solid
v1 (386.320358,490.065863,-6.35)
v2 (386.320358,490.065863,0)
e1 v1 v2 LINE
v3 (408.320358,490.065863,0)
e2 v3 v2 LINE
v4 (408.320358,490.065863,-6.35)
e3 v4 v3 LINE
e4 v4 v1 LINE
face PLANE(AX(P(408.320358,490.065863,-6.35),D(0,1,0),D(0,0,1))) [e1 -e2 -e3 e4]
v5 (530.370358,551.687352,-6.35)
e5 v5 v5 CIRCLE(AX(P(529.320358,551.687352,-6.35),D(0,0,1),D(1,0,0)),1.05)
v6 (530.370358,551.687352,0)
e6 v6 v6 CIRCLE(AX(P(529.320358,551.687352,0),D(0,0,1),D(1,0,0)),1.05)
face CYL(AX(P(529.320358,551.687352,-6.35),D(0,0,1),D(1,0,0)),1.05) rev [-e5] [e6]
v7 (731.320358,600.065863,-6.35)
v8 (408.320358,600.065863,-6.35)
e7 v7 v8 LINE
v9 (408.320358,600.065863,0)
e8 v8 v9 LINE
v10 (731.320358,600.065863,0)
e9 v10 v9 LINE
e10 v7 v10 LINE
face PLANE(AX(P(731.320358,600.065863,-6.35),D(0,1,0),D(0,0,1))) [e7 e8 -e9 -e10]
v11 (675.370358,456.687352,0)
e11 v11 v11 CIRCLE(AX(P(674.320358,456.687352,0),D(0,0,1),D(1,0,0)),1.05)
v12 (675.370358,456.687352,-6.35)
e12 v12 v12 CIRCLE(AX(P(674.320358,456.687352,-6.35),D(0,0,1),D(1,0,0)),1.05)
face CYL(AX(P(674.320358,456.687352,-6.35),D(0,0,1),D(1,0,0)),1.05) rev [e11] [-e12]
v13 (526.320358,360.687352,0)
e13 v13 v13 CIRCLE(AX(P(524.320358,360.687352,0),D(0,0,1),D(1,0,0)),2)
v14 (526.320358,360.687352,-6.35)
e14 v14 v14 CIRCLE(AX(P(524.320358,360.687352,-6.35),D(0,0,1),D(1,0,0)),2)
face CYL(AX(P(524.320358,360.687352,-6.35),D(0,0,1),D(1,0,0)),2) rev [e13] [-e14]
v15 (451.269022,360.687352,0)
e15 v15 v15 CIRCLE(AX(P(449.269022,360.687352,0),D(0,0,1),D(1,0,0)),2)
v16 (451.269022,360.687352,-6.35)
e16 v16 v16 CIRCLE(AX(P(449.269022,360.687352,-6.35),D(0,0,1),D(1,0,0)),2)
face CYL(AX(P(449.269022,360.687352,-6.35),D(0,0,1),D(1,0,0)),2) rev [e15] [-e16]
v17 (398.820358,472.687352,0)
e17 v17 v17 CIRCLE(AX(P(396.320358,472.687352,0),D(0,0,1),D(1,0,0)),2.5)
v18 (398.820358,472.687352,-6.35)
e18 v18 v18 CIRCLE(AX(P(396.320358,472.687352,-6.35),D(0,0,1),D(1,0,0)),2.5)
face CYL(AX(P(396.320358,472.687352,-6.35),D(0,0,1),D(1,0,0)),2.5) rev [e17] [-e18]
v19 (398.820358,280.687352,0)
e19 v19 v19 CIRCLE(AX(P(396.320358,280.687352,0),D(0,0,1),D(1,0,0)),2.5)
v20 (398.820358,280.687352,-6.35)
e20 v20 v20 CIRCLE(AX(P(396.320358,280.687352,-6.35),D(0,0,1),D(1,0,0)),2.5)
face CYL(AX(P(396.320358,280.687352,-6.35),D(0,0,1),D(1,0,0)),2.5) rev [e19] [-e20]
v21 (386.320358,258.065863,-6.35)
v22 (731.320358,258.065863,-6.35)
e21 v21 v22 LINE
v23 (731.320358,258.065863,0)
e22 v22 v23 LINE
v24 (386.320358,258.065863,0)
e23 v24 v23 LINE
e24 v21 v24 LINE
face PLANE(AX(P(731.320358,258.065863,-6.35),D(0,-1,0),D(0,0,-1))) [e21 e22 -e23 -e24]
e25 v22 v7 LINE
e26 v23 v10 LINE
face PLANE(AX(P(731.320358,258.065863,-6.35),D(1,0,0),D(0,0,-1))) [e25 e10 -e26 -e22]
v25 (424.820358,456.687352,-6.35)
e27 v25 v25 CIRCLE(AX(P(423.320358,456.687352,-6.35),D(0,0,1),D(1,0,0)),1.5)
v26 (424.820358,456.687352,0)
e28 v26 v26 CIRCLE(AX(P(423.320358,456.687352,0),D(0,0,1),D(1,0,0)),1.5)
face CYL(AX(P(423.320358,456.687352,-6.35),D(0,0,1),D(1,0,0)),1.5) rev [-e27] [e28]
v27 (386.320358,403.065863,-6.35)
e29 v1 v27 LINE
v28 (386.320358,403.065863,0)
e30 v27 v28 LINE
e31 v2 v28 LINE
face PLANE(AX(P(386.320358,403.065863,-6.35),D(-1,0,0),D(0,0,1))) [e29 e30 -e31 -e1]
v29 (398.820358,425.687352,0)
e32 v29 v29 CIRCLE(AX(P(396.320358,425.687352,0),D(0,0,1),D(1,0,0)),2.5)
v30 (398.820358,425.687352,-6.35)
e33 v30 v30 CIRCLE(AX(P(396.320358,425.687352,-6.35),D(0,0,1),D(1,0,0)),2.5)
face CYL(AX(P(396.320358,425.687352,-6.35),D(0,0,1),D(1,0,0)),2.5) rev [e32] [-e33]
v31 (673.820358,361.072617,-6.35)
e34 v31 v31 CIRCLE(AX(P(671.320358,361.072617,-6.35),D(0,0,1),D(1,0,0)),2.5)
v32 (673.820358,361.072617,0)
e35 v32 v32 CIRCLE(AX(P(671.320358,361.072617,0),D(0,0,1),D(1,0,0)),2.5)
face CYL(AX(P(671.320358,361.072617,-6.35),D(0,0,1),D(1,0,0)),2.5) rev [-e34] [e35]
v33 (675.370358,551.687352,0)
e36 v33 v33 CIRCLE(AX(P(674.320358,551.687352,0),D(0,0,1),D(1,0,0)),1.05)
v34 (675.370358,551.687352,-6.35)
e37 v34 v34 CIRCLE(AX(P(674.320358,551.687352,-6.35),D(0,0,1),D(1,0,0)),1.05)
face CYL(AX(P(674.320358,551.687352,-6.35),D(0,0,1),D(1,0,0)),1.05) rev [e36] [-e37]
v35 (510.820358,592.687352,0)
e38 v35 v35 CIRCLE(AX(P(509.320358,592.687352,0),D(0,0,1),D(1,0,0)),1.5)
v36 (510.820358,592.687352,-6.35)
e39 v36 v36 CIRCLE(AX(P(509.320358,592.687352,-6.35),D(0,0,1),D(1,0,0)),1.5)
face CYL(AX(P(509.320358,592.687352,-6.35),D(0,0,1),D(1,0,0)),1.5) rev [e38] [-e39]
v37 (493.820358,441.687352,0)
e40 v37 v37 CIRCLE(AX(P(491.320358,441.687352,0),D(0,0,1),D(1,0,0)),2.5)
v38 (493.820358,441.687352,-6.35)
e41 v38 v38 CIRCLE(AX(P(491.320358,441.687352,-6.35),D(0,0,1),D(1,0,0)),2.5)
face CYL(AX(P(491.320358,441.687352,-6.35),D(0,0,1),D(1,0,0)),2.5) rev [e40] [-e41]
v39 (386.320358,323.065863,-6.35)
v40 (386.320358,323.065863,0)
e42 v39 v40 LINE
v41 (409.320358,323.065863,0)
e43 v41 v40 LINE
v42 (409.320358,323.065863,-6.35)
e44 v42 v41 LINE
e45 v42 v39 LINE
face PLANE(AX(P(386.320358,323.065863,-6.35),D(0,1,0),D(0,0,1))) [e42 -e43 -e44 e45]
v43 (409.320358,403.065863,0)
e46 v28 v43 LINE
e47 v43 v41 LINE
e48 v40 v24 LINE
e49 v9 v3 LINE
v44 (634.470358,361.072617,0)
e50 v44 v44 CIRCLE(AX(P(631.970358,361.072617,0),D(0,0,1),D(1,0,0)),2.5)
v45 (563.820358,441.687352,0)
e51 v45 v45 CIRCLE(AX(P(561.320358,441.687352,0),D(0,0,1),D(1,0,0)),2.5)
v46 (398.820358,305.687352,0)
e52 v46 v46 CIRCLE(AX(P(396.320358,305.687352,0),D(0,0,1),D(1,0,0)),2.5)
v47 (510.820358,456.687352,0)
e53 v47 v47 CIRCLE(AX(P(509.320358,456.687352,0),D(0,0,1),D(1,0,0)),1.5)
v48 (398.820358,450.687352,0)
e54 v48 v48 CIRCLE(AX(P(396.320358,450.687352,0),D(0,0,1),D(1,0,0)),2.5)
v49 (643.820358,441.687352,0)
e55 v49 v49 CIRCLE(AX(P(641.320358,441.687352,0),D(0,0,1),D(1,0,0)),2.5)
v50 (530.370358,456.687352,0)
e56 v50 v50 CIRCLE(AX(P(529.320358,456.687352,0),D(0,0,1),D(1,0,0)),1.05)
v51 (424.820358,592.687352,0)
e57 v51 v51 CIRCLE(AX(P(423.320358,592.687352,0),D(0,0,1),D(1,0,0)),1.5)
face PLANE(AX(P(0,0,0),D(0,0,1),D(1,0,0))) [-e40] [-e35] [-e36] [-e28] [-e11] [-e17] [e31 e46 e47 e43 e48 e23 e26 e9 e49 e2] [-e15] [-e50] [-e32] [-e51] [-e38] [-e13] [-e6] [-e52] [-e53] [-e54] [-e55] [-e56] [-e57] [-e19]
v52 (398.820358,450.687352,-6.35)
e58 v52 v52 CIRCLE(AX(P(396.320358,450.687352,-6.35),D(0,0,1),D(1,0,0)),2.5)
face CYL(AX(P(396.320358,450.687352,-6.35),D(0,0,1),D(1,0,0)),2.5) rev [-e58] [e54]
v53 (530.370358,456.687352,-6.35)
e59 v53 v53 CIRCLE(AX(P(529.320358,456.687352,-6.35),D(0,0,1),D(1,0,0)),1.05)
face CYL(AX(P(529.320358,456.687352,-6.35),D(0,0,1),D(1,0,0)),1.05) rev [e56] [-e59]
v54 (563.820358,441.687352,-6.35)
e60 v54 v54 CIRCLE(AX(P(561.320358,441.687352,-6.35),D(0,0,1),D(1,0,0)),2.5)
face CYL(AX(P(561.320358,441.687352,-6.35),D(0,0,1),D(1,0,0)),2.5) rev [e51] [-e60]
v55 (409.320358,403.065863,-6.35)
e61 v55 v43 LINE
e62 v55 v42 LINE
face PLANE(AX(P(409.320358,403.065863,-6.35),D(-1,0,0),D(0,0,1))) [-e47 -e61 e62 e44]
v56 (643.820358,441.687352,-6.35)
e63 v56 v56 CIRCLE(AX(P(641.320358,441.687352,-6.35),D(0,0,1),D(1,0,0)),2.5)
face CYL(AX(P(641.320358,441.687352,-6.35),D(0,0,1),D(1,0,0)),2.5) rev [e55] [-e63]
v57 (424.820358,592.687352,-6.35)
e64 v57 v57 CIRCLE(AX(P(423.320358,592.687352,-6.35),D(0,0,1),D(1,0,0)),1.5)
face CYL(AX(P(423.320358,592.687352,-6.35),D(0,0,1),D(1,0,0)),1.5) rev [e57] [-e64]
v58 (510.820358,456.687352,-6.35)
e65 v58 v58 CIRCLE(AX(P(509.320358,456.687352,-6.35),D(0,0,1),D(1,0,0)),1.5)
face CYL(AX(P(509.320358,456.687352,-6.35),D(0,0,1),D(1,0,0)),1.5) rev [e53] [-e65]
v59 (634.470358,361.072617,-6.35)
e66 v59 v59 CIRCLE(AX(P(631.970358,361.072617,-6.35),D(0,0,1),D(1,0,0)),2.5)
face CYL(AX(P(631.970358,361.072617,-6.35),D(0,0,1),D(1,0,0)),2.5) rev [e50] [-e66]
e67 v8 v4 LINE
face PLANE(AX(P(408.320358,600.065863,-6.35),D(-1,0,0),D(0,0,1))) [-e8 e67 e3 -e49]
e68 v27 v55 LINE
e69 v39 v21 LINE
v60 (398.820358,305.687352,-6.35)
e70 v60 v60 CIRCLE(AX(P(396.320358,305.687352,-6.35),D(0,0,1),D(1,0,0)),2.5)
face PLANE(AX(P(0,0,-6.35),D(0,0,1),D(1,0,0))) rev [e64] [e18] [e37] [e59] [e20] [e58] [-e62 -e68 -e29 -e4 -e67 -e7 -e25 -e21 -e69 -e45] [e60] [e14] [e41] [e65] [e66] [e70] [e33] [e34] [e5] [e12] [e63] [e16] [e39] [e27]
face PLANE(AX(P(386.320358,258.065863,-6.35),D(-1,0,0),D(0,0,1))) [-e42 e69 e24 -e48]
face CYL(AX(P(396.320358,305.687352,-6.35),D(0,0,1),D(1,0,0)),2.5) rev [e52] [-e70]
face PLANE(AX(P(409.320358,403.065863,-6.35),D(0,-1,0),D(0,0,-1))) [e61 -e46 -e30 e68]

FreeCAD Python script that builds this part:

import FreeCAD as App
import Part
import Sketcher
from FreeCAD import Vector
Q = App.Units.Quantity

doc = App.newDocument("Part")
body = doc.addObject("PartDesign::Body", "Body")

# Sketch on XY plane
sketch1 = body.newObject("Sketcher::SketchObject", "Sketch")
sketch1.AttachmentSupport = (doc.getObject("XY_Plane"), [""])
sketch1.MapMode = "FlatFace"
sketch1.addGeometry([
    Part.LineSegment(Vector(386.3, 258.1, 0), Vector(731.3, 258.1, 0)),  # 0
    Part.LineSegment(Vector(731.3, 258.1, 0), Vector(731.3, 600.1, 0)),  # 1
    Part.LineSegment(Vector(731.3, 600.1, 0), Vector(408.3, 600.1, 0)),  # 2
    Part.LineSegment(Vector(408.3, 600.1, 0), Vector(408.3, 490.1, 0)),  # 3
    Part.LineSegment(Vector(408.3, 490.1, 0), Vector(386.3, 490.1, 0)),  # 4
    Part.LineSegment(Vector(386.3, 490.1, 0), Vector(386.3, 403.1, 0)),  # 5
    Part.LineSegment(Vector(386.3, 403.1, 0), Vector(409.3, 403.1, 0)),  # 6
    Part.LineSegment(Vector(409.3, 403.1, 0), Vector(409.3, 323.1, 0)),  # 7
    Part.LineSegment(Vector(409.3, 323.1, 0), Vector(386.3, 323.1, 0)),  # 8
    Part.LineSegment(Vector(386.3, 323.1, 0), Vector(386.3, 258.1, 0)),  # 9
    Part.Circle(Vector(671.3, 361.1, 0), Vector(0, 0, 1), 2.5),  # 10
    Part.Circle(Vector(632, 361.1, 0), Vector(0, 0, 1), 2.5),  # 11
    Part.Circle(Vector(396.3, 280.7, 0), Vector(0, 0, 1), 2.5),  # 12
    Part.Circle(Vector(396.3, 305.7, 0), Vector(0, 0, 1), 2.5),  # 13
    Part.Circle(Vector(524.3, 360.7, 0), Vector(0, 0, 1), 2),  # 14
    Part.Circle(Vector(449.3, 360.7, 0), Vector(0, 0, 1), 2),  # 15
    Part.Circle(Vector(396.3, 425.7, 0), Vector(0, 0, 1), 2.5),  # 16
    Part.Circle(Vector(641.3, 441.7, 0), Vector(0, 0, 1), 2.5),  # 17
    Part.Circle(Vector(674.3, 456.7, 0), Vector(0, 0, 1), 1.1),  # 18
    Part.Circle(Vector(561.3, 441.7, 0), Vector(0, 0, 1), 2.5),  # 19
    Part.Circle(Vector(674.3, 551.7, 0), Vector(0, 0, 1), 1.1),  # 20
    Part.Circle(Vector(529.3, 456.7, 0), Vector(0, 0, 1), 1.1),  # 21
    Part.Circle(Vector(509.3, 456.7, 0), Vector(0, 0, 1), 1.5),  # 22
    Part.Circle(Vector(491.3, 441.7, 0), Vector(0, 0, 1), 2.5),  # 23
    Part.Circle(Vector(396.3, 450.7, 0), Vector(0, 0, 1), 2.5),  # 24
    Part.Circle(Vector(423.3, 456.7, 0), Vector(0, 0, 1), 1.5),  # 25
    Part.Circle(Vector(396.3, 472.7, 0), Vector(0, 0, 1), 2.5),  # 26
    Part.Circle(Vector(529.3, 551.7, 0), Vector(0, 0, 1), 1.1),  # 27
    Part.Circle(Vector(509.3, 592.7, 0), Vector(0, 0, 1), 1.5),  # 28
    Part.Circle(Vector(423.3, 592.7, 0), Vector(0, 0, 1), 1.5),  # 29
], False)
sketch1.addConstraint([
    Sketcher.Constraint("Coincident", 0, 2, 1, 1),
    Sketcher.Constraint("Coincident", 1, 2, 2, 1),
    Sketcher.Constraint("Coincident", 2, 2, 3, 1),
    Sketcher.Constraint("Coincident", 3, 2, 4, 1),
    Sketcher.Constraint("Coincident", 4, 2, 5, 1),
    Sketcher.Constraint("Coincident", 5, 2, 6, 1),
    Sketcher.Constraint("Coincident", 6, 2, 7, 1),
    Sketcher.Constraint("Coincident", 7, 2, 8, 1),
    Sketcher.Constraint("Coincident", 8, 2, 9, 1),
    Sketcher.Constraint("Coincident", 9, 2, 0, 1),
    Sketcher.Constraint("Horizontal", 0),
    Sketcher.Constraint("Vertical", 1),
    Sketcher.Constraint("Horizontal", 2),
    Sketcher.Constraint("Vertical", 3),
    Sketcher.Constraint("Horizontal", 4),
    Sketcher.Constraint("Vertical", 5),
    Sketcher.Constraint("Horizontal", 6),
    Sketcher.Constraint("Vertical", 7),
    Sketcher.Constraint("Horizontal", 8),
    Sketcher.Constraint("Vertical", 9),
    Sketcher.Constraint("Equal", 10, 11),
    Sketcher.Constraint("Equal", 11, 12),
    Sketcher.Constraint("Equal", 12, 13),
    Sketcher.Constraint("Equal", 14, 15),
    Sketcher.Constraint("Equal", 13, 16),
    Sketcher.Constraint("Equal", 16, 17),
    Sketcher.Constraint("Equal", 17, 19),
    Sketcher.Constraint("Equal", 18, 20),
    Sketcher.Constraint("Equal", 20, 21),
    Sketcher.Constraint("Equal", 19, 23),
    Sketcher.Constraint("Equal", 23, 24),
    Sketcher.Constraint("Equal", 22, 25),
    Sketcher.Constraint("Equal", 24, 26),
    Sketcher.Constraint("Equal", 21, 27),
    Sketcher.Constraint("Equal", 25, 28),
    Sketcher.Constraint("Equal", 28, 29),
    Sketcher.Constraint("Horizontal", 10, 3, 11, 3),
    Sketcher.Constraint("Horizontal", 14, 3, 15, 3),
    Sketcher.Constraint("Horizontal", 17, 3, 19, 3),
    Sketcher.Constraint("Horizontal", 18, 3, 21, 3),
    Sketcher.Constraint("Horizontal", 21, 3, 22, 3),
    Sketcher.Constraint("Horizontal", 19, 3, 23, 3),
    Sketcher.Constraint("Horizontal", 22, 3, 25, 3),
    Sketcher.Constraint("Horizontal", 20, 3, 27, 3),
    Sketcher.Constraint("Horizontal", 28, 3, 29, 3),
    Sketcher.Constraint("Vertical", 12, 3, 13, 3),
    Sketcher.Constraint("Vertical", 13, 3, 16, 3),
    Sketcher.Constraint("Vertical", 18, 3, 20, 3),
    Sketcher.Constraint("Vertical", 16, 3, 24, 3),
    Sketcher.Constraint("Vertical", 24, 3, 26, 3),
    Sketcher.Constraint("Vertical", 21, 3, 27, 3),
    Sketcher.Constraint("Vertical", 22, 3, 28, 3),
    Sketcher.Constraint("Vertical", 25, 3, 29, 3),
    Sketcher.Constraint("Vertical", 5, 2, 8, 2),
    Sketcher.Constraint("Diameter", 10, Q("5 mm")),
    Sketcher.Constraint("Diameter", 14, Q("4 mm")),
    Sketcher.Constraint("Diameter", 22, Q("3 mm")),
    Sketcher.Constraint("Diameter", 18, Q("2.1 mm")),
    Sketcher.Constraint("DistanceX", 0, 1, 0, 2, Q("345 mm")),
    Sketcher.Constraint("DistanceX", 2, 2, 2, 1, Q("323 mm")),
    Sketcher.Constraint("DistanceX", 6, 1, 6, 2, Q("23 mm")),
    Sketcher.Constraint("DistanceY", 1, 1, 1, 2, Q("342 mm")),
    Sketcher.Constraint("DistanceY", 3, 2, 3, 1, Q("110 mm")),
    Sketcher.Constraint("DistanceY", 5, 2, 5, 1, Q("87 mm")),
    Sketcher.Constraint("DistanceY", 7, 2, 7, 1, Q("80 mm")),
    Sketcher.Constraint("DistanceX", 12, 3, 10, 3, Q("275 mm")),
    Sketcher.Constraint("DistanceY", 12, 3, 13, 3, Q("25 mm")),
    Sketcher.Constraint("DistanceX", 13, 3, 14, 3, Q("128 mm")),
    Sketcher.Constraint("DistanceY", 13, 3, 14, 3, Q("55 mm")),
    Sketcher.Constraint("DistanceY", 15, 3, 16, 3, Q("65 mm")),
    Sketcher.Constraint("DistanceX", 17, 3, 10, 3, Q("30 mm")),
    Sketcher.Constraint("DistanceY", 14, 3, 17, 3, Q("81 mm")),
    Sketcher.Constraint("DistanceX", 17, 3, 18, 3, Q("33 mm")),
    Sketcher.Constraint("DistanceY", 17, 3, 18, 3, Q("15 mm")),
    Sketcher.Constraint("DistanceX", 19, 3, 17, 3, Q("80 mm")),
    Sketcher.Constraint("DistanceY", 18, 3, 20, 3, Q("95 mm")),
    Sketcher.Constraint("DistanceX", 21, 3, 19, 3, Q("32 mm")),
    Sketcher.Constraint("DistanceX", 22, 3, 21, 3, Q("20 mm")),
    Sketcher.Constraint("DistanceX", 23, 3, 22, 3, Q("18 mm")),
    Sketcher.Constraint("DistanceY", 16, 3, 24, 3, Q("25 mm")),
    Sketcher.Constraint("DistanceX", 24, 3, 25, 3, Q("27 mm")),
    Sketcher.Constraint("DistanceY", 24, 3, 26, 3, Q("22 mm")),
    Sketcher.Constraint("DistanceY", 27, 3, 28, 3, Q("41 mm")),
    Sketcher.Constraint("DistanceX", 10, 3, 0, 2, Q("60 mm")),
    Sketcher.Constraint("DistanceX", 11, 3, 10, 3, Q("39.35 mm")),
    Sketcher.Constraint("DistanceX", -1, 1, 10, 3, Q("671.320358 mm")),
    Sketcher.Constraint("DistanceY", -1, 1, 12, 3, Q("280.687352 mm")),
    Sketcher.Constraint("DistanceX", -1, 1, 15, 3, Q("449.269022 mm")),
    Sketcher.Constraint("DistanceY", 0, 2, 17, 3, Q("183.621488 mm")),
    Sketcher.Constraint("DistanceY", -1, 1, 10, 3, Q("361.072617 mm")),
])
pad1 = body.newObject("PartDesign::Pad", "Pad")
pad1.Profile = sketch1
pad1.Length = 6.35
pad1.Reversed = True

doc.recompute()
